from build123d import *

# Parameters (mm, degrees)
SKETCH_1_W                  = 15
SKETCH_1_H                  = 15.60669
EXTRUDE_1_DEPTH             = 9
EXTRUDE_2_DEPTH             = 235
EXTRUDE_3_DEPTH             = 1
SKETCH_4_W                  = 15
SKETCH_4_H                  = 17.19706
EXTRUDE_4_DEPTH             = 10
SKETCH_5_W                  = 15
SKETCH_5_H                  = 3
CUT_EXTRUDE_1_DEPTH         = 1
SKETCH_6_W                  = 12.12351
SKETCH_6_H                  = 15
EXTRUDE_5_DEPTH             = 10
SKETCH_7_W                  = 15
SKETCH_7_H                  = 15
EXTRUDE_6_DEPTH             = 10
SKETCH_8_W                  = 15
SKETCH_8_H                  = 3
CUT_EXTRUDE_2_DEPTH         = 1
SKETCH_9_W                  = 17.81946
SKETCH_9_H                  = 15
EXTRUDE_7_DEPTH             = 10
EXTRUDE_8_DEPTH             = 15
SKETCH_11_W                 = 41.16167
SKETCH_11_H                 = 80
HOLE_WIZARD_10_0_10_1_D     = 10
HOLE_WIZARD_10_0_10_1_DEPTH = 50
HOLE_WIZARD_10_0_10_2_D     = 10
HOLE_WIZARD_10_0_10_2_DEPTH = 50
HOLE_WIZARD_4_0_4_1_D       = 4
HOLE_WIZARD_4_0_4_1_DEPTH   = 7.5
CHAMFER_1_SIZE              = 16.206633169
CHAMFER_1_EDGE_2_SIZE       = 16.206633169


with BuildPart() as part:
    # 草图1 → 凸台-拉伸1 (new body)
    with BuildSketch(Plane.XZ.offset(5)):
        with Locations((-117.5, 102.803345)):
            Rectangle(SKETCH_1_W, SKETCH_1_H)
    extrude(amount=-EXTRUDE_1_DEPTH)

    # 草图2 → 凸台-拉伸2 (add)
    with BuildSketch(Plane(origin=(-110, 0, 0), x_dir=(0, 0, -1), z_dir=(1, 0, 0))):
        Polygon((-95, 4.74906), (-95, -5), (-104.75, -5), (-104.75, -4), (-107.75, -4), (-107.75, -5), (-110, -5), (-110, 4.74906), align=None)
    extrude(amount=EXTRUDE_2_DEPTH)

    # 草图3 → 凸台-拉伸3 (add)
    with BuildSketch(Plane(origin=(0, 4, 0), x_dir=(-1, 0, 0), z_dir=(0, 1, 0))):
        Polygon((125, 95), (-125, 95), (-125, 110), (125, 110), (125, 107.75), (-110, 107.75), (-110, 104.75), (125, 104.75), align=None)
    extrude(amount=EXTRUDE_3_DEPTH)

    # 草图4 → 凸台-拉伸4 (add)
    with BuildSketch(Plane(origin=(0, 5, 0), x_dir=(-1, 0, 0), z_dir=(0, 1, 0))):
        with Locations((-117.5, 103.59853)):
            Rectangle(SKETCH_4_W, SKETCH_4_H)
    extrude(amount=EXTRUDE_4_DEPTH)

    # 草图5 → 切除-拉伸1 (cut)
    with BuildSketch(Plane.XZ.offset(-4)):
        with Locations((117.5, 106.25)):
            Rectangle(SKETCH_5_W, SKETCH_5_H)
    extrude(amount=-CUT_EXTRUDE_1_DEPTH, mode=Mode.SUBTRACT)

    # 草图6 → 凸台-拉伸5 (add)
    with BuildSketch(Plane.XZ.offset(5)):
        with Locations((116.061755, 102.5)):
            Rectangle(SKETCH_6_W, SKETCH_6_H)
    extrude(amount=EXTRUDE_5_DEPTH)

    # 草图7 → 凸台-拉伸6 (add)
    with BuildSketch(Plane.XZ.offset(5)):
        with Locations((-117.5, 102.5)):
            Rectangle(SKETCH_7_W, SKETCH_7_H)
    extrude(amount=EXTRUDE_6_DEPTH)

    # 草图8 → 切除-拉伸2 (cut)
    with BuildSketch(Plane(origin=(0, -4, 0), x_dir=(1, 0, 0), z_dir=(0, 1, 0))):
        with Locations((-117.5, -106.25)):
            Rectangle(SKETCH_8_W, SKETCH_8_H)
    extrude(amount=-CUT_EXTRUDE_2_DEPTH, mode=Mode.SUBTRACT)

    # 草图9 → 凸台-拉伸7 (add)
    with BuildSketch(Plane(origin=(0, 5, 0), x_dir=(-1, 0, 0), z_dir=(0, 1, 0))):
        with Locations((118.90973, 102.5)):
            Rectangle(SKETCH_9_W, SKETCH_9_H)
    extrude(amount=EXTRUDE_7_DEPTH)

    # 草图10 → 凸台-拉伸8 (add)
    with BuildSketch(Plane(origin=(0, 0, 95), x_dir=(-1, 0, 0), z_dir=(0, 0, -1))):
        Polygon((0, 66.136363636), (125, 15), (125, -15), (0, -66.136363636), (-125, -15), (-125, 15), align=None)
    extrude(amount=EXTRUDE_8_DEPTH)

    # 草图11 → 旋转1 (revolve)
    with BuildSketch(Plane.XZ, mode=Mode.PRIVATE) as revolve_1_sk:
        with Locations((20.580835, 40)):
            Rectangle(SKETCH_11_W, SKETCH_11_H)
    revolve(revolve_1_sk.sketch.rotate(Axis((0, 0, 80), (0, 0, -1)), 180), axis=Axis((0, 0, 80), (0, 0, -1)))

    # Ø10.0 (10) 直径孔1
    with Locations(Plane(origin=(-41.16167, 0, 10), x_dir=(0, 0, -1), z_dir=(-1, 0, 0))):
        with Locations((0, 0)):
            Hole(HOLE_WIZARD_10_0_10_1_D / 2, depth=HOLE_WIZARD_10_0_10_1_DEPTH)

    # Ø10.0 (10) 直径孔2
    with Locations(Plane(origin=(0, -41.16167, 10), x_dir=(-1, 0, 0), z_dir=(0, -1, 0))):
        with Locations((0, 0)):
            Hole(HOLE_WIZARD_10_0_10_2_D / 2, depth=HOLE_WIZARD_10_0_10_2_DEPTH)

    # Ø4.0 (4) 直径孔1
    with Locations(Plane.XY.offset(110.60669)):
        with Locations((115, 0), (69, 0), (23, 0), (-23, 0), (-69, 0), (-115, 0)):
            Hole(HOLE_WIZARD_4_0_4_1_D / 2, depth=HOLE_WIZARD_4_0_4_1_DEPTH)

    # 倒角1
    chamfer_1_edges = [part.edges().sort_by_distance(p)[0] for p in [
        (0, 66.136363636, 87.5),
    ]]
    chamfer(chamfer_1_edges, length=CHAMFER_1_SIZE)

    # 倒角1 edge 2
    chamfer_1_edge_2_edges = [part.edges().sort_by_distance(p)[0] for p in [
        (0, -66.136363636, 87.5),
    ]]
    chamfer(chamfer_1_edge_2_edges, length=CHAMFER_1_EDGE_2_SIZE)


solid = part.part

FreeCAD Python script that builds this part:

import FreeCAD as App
import Part
import Sketcher
from FreeCAD import Vector


def edges_at(feature, points):
    """Names of the edges that pass closest to the given points."""
    edges = feature.Shape.Edges
    near = lambda p: min(range(len(edges)), key=lambda i: edges[i].distToShape(Part.Vertex(*p))[0])
    return sorted({f"Edge{near(p) + 1}" for p in points})

doc = App.newDocument("Part")
body = doc.addObject("PartDesign::Body", "Body")

sketch1 = body.newObject("Sketcher::SketchObject", "Sketch")
sketch1.AttachmentSupport = (doc.getObject("XZ_Plane"), [""])
sketch1.MapMode = "FlatFace"
sketch1.AttachmentOffset = App.Placement(Vector(0, 0, 5), App.Rotation())
sketch1.addGeometry([
    Part.LineSegment(Vector(-125, 111, 0), Vector(-125, 95, 0)),
    Part.LineSegment(Vector(-125, 95, 0), Vector(-110, 95, 0)),
    Part.LineSegment(Vector(-110, 95, 0), Vector(-110, 111, 0)),
    Part.LineSegment(Vector(-110, 111, 0), Vector(-125, 111, 0)),
], False)
sketch1.addConstraint([
    Sketcher.Constraint("Coincident", 0, 2, 1, 1),
    Sketcher.Constraint("Coincident", 1, 2, 2, 1),
    Sketcher.Constraint("Coincident", 2, 2, 3, 1),
    Sketcher.Constraint("Coincident", 3, 2, 0, 1),
    Sketcher.Constraint("Vertical", 0),
    Sketcher.Constraint("Horizontal", 1),
    Sketcher.Constraint("Vertical", 2),
    Sketcher.Constraint("Horizontal", 3),
    Sketcher.Constraint("DistanceX", 1, 1, 1, 2, 15.0),
    Sketcher.Constraint("DistanceX", 0, 2, -1, 1, 125.0),
    Sketcher.Constraint("DistanceY", -1, 1, 0, 2, 95.0),
    Sketcher.Constraint("DistanceY", 0, 2, 0, 1, 15.60669),
])
pad1 = body.newObject("PartDesign::Pad", "Pad")
pad1.Profile = sketch1
pad1.Length = 9
pad1.Reversed = True

sketch2 = body.newObject("Sketcher::SketchObject", "Sketch001")
sketch2.AttachmentSupport = (doc.getObject("YZ_Plane"), [""])
sketch2.MapMode = "FlatFace"
sketch2.AttachmentOffset = App.Placement(Vector(0, 0, -110), App.Rotation())
sketch2.addGeometry([
    Part.LineSegment(Vector(-5, 95, 0), Vector(4.7, 95, 0)),
    Part.LineSegment(Vector(4.7, 95, 0), Vector(4.7, 110, 0)),
    Part.LineSegment(Vector(4.7, 110, 0), Vector(-5, 110, 0)),
    Part.LineSegment(Vector(-5, 110, 0), Vector(-5, 107.8, 0)),
    Part.LineSegment(Vector(-5, 107.8, 0), Vector(-4, 107.8, 0)),
    Part.LineSegment(Vector(-4, 107.8, 0), Vector(-4, 104.8, 0)),
    Part.LineSegment(Vector(-4, 104.8, 0), Vector(-5, 104.8, 0)),
    Part.LineSegment(Vector(-5, 104.8, 0), Vector(-5, 95, 0)),
], False)
sketch2.addConstraint([
    Sketcher.Constraint("Coincident", 0, 2, 1, 1),
    Sketcher.Constraint("Coincident", 1, 2, 2, 1),
    Sketcher.Constraint("Coincident", 2, 2, 3, 1),
    Sketcher.Constraint("Coincident", 3, 2, 4, 1),
    Sketcher.Constraint("Coincident", 4, 2, 5, 1),
    Sketcher.Constraint("Coincident", 5, 2, 6, 1),
    Sketcher.Constraint("Coincident", 6, 2, 7, 1),
    Sketcher.Constraint("Coincident", 7, 2, 0, 1),
    Sketcher.Constraint("Horizontal", 0),
    Sketcher.Constraint("Vertical", 1),
    Sketcher.Constraint("Horizontal", 2),
    Sketcher.Constraint("Vertical", 3),
    Sketcher.Constraint("Horizontal", 4),
    Sketcher.Constraint("Vertical", 5),
    Sketcher.Constraint("Horizontal", 6),
    Sketcher.Constraint("Vertical", 7),
    Sketcher.Constraint("Vertical", 3, 2, 6, 2),
    Sketcher.Constraint("DistanceX", 4, 1, 4, 2, 1.0),
    Sketcher.Constraint("DistanceY", 1, 1, 1, 2, 15.0),
    Sketcher.Constraint("DistanceY", 5, 2, 5, 1, 3.0),
    Sketcher.Constraint("DistanceY", -1, 1, 0, 2, 95.0),
    Sketcher.Constraint("DistanceX", 2, 2, -1, 1, 5.0),
    Sketcher.Constraint("DistanceY", 3, 2, 3, 1, 2.25),
    Sketcher.Constraint("DistanceX", 0, 1, 0, 2, 9.74906),
])
pad2 = body.newObject("PartDesign::Pad", "Pad001")
pad2.Profile = sketch2
pad2.Length = 235

sketch3 = body.newObject("Sketcher::SketchObject", "Sketch002")
sketch3.AttachmentSupport = (doc.getObject("XZ_Plane"), [""])
sketch3.MapMode = "FlatFace"
sketch3.AttachmentOffset = App.Placement(Vector(0, 0, -4), App.Rotation())
sketch3.addGeometry([
    Part.LineSegment(Vector(125, 95, 0), Vector(-125, 95, 0)),
    Part.LineSegment(Vector(-125, 95, 0), Vector(-125, 104.8, 0)),
    Part.LineSegment(Vector(-125, 104.8, 0), Vector(110, 104.8, 0)),
    Part.LineSegment(Vector(110, 104.8, 0), Vector(110, 107.8, 0)),
    Part.LineSegment(Vector(110, 107.8, 0), Vector(-125, 107.8, 0)),
    Part.LineSegment(Vector(-125, 107.8, 0), Vector(-125, 110, 0)),
    Part.LineSegment(Vector(-125, 110, 0), Vector(125, 110, 0)),
    Part.LineSegment(Vector(125, 110, 0), Vector(125, 95, 0)),
], False)
sketch3.addConstraint([
    Sketcher.Constraint("Coincident", 0, 2, 1, 1),
    Sketcher.Constraint("Coincident", 1, 2, 2, 1),
    Sketcher.Constraint("Coincident", 2, 2, 3, 1),
    Sketcher.Constraint("Coincident", 3, 2, 4, 1),
    Sketcher.Constraint("Coincident", 4, 2, 5, 1),
    Sketcher.Constraint("Coincident", 5, 2, 6, 1),
    Sketcher.Constraint("Coincident", 6, 2, 7, 1),
    Sketcher.Constraint("Coincident", 7, 2, 0, 1),
    Sketcher.Constraint("Horizontal", 0),
    Sketcher.Constraint("Vertical", 1),
    Sketcher.Constraint("Horizontal", 2),
    Sketcher.Constraint("Vertical", 3),
    Sketcher.Constraint("Horizontal", 4),
    Sketcher.Constraint("Vertical", 5),
    Sketcher.Constraint("Horizontal", 6),
    Sketcher.Constraint("Vertical", 7),
    Sketcher.Constraint("Vertical", 1, 2, 4, 2),
    Sketcher.Constraint("DistanceX", 0, 2, 0, 1, 250.0),
    Sketcher.Constraint("DistanceX", 2, 1, 2, 2, 235.0),
    Sketcher.Constraint("DistanceY", 3, 1, 3, 2, 3.0),
    Sketcher.Constraint("DistanceY", 7, 2, 7, 1, 15.0),
    Sketcher.Constraint("DistanceX", 0, 2, -1, 1, 125.0),
    Sketcher.Constraint("DistanceY", -1, 1, 0, 2, 95.0),
    Sketcher.Constraint("DistanceY", 1, 1, 1, 2, 9.75),
])
pad3 = body.newObject("PartDesign::Pad", "Pad002")
pad3.Profile = sketch3
pad3.Length = 1
pad3.Reversed = True

sketch4 = body.newObject("Sketcher::SketchObject", "Sketch003")
sketch4.AttachmentSupport = (doc.getObject("XZ_Plane"), [""])
sketch4.MapMode = "FlatFace"
sketch4.AttachmentOffset = App.Placement(Vector(0, 0, -5), App.Rotation())
sketch4.addGeometry([
    Part.LineSegment(Vector(125, 112, 0), Vector(125, 95, 0)),
    Part.LineSegment(Vector(125, 95, 0), Vector(110, 95, 0)),
    Part.LineSegment(Vector(110, 95, 0), Vector(110, 112, 0)),
    Part.LineSegment(Vector(110, 112, 0), Vector(125, 112, 0)),
], False)
sketch4.addConstraint([
    Sketcher.Constraint("Coincident", 0, 2, 1, 1),
    Sketcher.Constraint("Coincident", 1, 2, 2, 1),
    Sketcher.Constraint("Coincident", 2, 2, 3, 1),
    Sketcher.Constraint("Coincident", 3, 2, 0, 1),
    Sketcher.Constraint("Vertical", 0),
    Sketcher.Constraint("Horizontal", 1),
    Sketcher.Constraint("Vertical", 2),
    Sketcher.Constraint("Horizontal", 3),
    Sketcher.Constraint("DistanceX", 1, 2, 1, 1, 15.0),
    Sketcher.Constraint("DistanceX", -1, 1, 0, 2, 125.0),
    Sketcher.Constraint("DistanceY", -1, 1, 0, 2, 95.0),
    Sketcher.Constraint("DistanceY", 0, 2, 0, 1, 17.19706),
])
pad4 = body.newObject("PartDesign::Pad", "Pad003")
pad4.Profile = sketch4
pad4.Length = 10
pad4.Reversed = True

sketch5 = body.newObject("Sketcher::SketchObject", "Sketch004")
sketch5.AttachmentSupport = (doc.getObject("XZ_Plane"), [""])
sketch5.MapMode = "FlatFace"
sketch5.AttachmentOffset = App.Placement(Vector(0, 0, -4), App.Rotation())
sketch5.addGeometry([
    Part.LineSegment(Vector(110, 107.8, 0), Vector(110, 104.8, 0)),
    Part.LineSegment(Vector(110, 104.8, 0), Vector(125, 104.8, 0)),
    Part.LineSegment(Vector(125, 104.8, 0), Vector(125, 107.8, 0)),
    Part.LineSegment(Vector(125, 107.8, 0), Vector(110, 107.8, 0)),
], False)
sketch5.addConstraint([
    Sketcher.Constraint("Coincident", 0, 2, 1, 1),
    Sketcher.Constraint("Coincident", 1, 2, 2, 1),
    Sketcher.Constraint("Coincident", 2, 2, 3, 1),
    Sketcher.Constraint("Coincident", 3, 2, 0, 1),
    Sketcher.Constraint("Vertical", 0),
    Sketcher.Constraint("Horizontal", 1),
    Sketcher.Constraint("Vertical", 2),
    Sketcher.Constraint("Horizontal", 3),
    Sketcher.Constraint("DistanceX", 1, 1, 1, 2, 15.0),
    Sketcher.Constraint("DistanceY", 0, 2, 0, 1, 3.0),
    Sketcher.Constraint("DistanceX", -1, 1, 0, 2, 110.0),
    Sketcher.Constraint("DistanceY", -1, 1, 0, 2, 104.75),
])
pocket1 = body.newObject("PartDesign::Pocket", "Pocket")
pocket1.Profile = sketch5
pocket1.Length = 1

sketch6 = body.newObject("Sketcher::SketchObject", "Sketch005")
sketch6.AttachmentSupport = (doc.getObject("XZ_Plane"), [""])
sketch6.MapMode = "FlatFace"
sketch6.AttachmentOffset = App.Placement(Vector(0, 0, 5), App.Rotation())
sketch6.addGeometry([
    Part.LineSegment(Vector(110, 110, 0), Vector(110, 95, 0)),
    Part.LineSegment(Vector(110, 95, 0), Vector(122, 95, 0)),
    Part.LineSegment(Vector(122, 95, 0), Vector(122, 110, 0)),
    Part.LineSegment(Vector(122, 110, 0), Vector(110, 110, 0)),
], False)
sketch6.addConstraint([
    Sketcher.Constraint("Coincident", 0, 2, 1, 1),
    Sketcher.Constraint("Coincident", 1, 2, 2, 1),
    Sketcher.Constraint("Coincident", 2, 2, 3, 1),
    Sketcher.Constraint("Coincident", 3, 2, 0, 1),
    Sketcher.Constraint("Vertical", 0),
    Sketcher.Constraint("Horizontal", 1),
    Sketcher.Constraint("Vertical", 2),
    Sketcher.Constraint("Horizontal", 3),
    Sketcher.Constraint("DistanceY", 0, 2, 0, 1, 15.0),
    Sketcher.Constraint("DistanceX", -1, 1, 0, 2, 110.0),
    Sketcher.Constraint("DistanceY", -1, 1, 0, 2, 95.0),
    Sketcher.Constraint("DistanceX", 1, 1, 1, 2, 12.12351),
])
pad5 = body.newObject("PartDesign::Pad", "Pad004")
pad5.Profile = sketch6
pad5.Length = 10

sketch7 = body.newObject("Sketcher::SketchObject", "Sketch006")
sketch7.AttachmentSupport = (doc.getObject("XZ_Plane"), [""])
sketch7.MapMode = "FlatFace"
sketch7.AttachmentOffset = App.Placement(Vector(0, 0, 5), App.Rotation())
sketch7.addGeometry([
    Part.LineSegment(Vector(-125, 110, 0), Vector(-125, 95, 0)),
    Part.LineSegment(Vector(-125, 95, 0), Vector(-110, 95, 0)),
    Part.LineSegment(Vector(-110, 95, 0), Vector(-110, 110, 0)),
    Part.LineSegment(Vector(-110, 110, 0), Vector(-125, 110, 0)),
], False)
sketch7.addConstraint([
    Sketcher.Constraint("Coincident", 0, 2, 1, 1),
    Sketcher.Constraint("Coincident", 1, 2, 2, 1),
    Sketcher.Constraint("Coincident", 2, 2, 3, 1),
    Sketcher.Constraint("Coincident", 3, 2, 0, 1),
    Sketcher.Constraint("Vertical", 0),
    Sketcher.Constraint("Horizontal", 1),
    Sketcher.Constraint("Vertical", 2),
    Sketcher.Constraint("Horizontal", 3),
    Sketcher.Constraint("Equal", 3, 0),
    Sketcher.Constraint("DistanceX", 1, 1, 1, 2, 15.0),
    Sketcher.Constraint("DistanceX", 0, 2, -1, 1, 125.0),
    Sketcher.Constraint("DistanceY", -1, 1, 0, 2, 95.0),
])
pad6 = body.newObject("PartDesign::Pad", "Pad005")
pad6.Profile = sketch7
pad6.Length = 10

sketch8 = body.newObject("Sketcher::SketchObject", "Sketch007")
sketch8.AttachmentSupport = (doc.getObject("XZ_Plane"), [""])
sketch8.MapMode = "FlatFace"
sketch8.AttachmentOffset = App.Placement(Vector(0, 0, 4), App.Rotation())
sketch8.addGeometry([
    Part.LineSegment(Vector(-125, 104.8, 0), Vector(-125, 107.8, 0)),
    Part.LineSegment(Vector(-125, 107.8, 0), Vector(-110, 107.8, 0)),
    Part.LineSegment(Vector(-110, 107.8, 0), Vector(-110, 104.8, 0)),
    Part.LineSegment(Vector(-110, 104.8, 0), Vector(-125, 104.8, 0)),
], False)
sketch8.addConstraint([
    Sketcher.Constraint("Coincident", 0, 2, 1, 1),
    Sketcher.Constraint("Coincident", 1, 2, 2, 1),
    Sketcher.Constraint("Coincident", 2, 2, 3, 1),
    Sketcher.Constraint("Coincident", 3, 2, 0, 1),
    Sketcher.Constraint("Vertical", 0),
    Sketcher.Constraint("Horizontal", 1),
    Sketcher.Constraint("Vertical", 2),
    Sketcher.Constraint("Horizontal", 3),
    Sketcher.Constraint("DistanceX", 1, 1, 1, 2, 15.0),
    Sketcher.Constraint("DistanceY", 0, 1, 0, 2, 3.0),
    Sketcher.Constraint("DistanceX", 0, 2, -1, 1, 125.0),
    Sketcher.Constraint("DistanceY", -1, 1, 0, 2, 107.75),
])
pocket2 = body.newObject("PartDesign::Pocket", "Pocket001")
pocket2.Profile = sketch8
pocket2.Length = 1
pocket2.Reversed = True

sketch9 = body.newObject("Sketcher::SketchObject", "Sketch008")
sketch9.AttachmentSupport = (doc.getObject("XZ_Plane"), [""])
sketch9.MapMode = "FlatFace"
sketch9.AttachmentOffset = App.Placement(Vector(0, 0, -5), App.Rotation())
sketch9.addGeometry([
    Part.LineSegment(Vector(-110, 110, 0), Vector(-110, 95, 0)),
    Part.LineSegment(Vector(-110, 95, 0), Vector(-128, 95, 0)),
    Part.LineSegment(Vector(-128, 95, 0), Vector(-128, 110, 0)),
    Part.LineSegment(Vector(-128, 110, 0), Vector(-110, 110, 0)),
], False)
sketch9.addConstraint([
    Sketcher.Constraint("Coincident", 0, 2, 1, 1),
    Sketcher.Constraint("Coincident", 1, 2, 2, 1),
    Sketcher.Constraint("Coincident", 2, 2, 3, 1),
    Sketcher.Constraint("Coincident", 3, 2, 0, 1),
    Sketcher.Constraint("Vertical", 0),
    Sketcher.Constraint("Horizontal", 1),
    Sketcher.Constraint("Vertical", 2),
    Sketcher.Constraint("Horizontal", 3),
    Sketcher.Constraint("DistanceY", 0, 2, 0, 1, 15.0),
    Sketcher.Constraint("DistanceX", 0, 2, -1, 1, 110.0),
    Sketcher.Constraint("DistanceY", -1, 1, 0, 2, 95.0),
    Sketcher.Constraint("DistanceX", 1, 2, 1, 1, 17.81946),
])
pad7 = body.newObject("PartDesign::Pad", "Pad006")
pad7.Profile = sketch9
pad7.Length = 10
pad7.Reversed = True

sketch10 = body.newObject("Sketcher::SketchObject", "Sketch009")
sketch10.AttachmentSupport = (doc.getObject("XY_Plane"), [""])
sketch10.MapMode = "FlatFace"
sketch10.AttachmentOffset = App.Placement(Vector(0, 0, 95), App.Rotation())
sketch10.addGeometry([
    Part.LineSegment(Vector(-125, 15, 0), Vector(0, 66, 0)),
    Part.LineSegment(Vector(0, 66, 0), Vector(125, 15, 0)),
    Part.LineSegment(Vector(125, 15, 0), Vector(125, -15, 0)),
    Part.LineSegment(Vector(125, -15, 0), Vector(0, -66, 0)),
    Part.LineSegment(Vector(0, -66, 0), Vector(-125, -15, 0)),
    Part.LineSegment(Vector(-125, -15, 0), Vector(-125, 15, 0)),
], False)
sketch10.addConstraint([
    Sketcher.Constraint("Coincident", 0, 2, 1, 1),
    Sketcher.Constraint("Coincident", 1, 2, 2, 1),
    Sketcher.Constraint("Coincident", 2, 2, 3, 1),
    Sketcher.Constraint("Coincident", 3, 2, 4, 1),
    Sketcher.Constraint("Coincident", 4, 2, 5, 1),
    Sketcher.Constraint("Coincident", 5, 2, 0, 1),
    Sketcher.Constraint("Vertical", 2),
    Sketcher.Constraint("Vertical", 5),
    Sketcher.Constraint("Symmetric", 0, 2, 3, 2, -1, 1),
    Sketcher.Constraint("Symmetric", 1, 2, 4, 2, -1, 1),
    Sketcher.Constraint("PointOnObject", 0, 2, -2),
    Sketcher.Constraint("Parallel", 0, 3),
    Sketcher.Constraint("Horizontal", 2, 2, 4, 2),
    Sketcher.Constraint("DistanceY", 2, 2, 2, 1, 30.0),
    Sketcher.Constraint("DistanceX", -1, 1, 1, 2, 125.0),
    Sketcher.Constraint("Distance", 0, 135.055276),
])
pad8 = body.newObject("PartDesign::Pad", "Pad007")
pad8.Profile = sketch10
pad8.Length = 15
pad8.Reversed = True

sketch11 = body.newObject("Sketcher::SketchObject", "Sketch010")
sketch11.AttachmentSupport = (doc.getObject("XZ_Plane"), [""])
sketch11.MapMode = "FlatFace"
sketch11.addGeometry([
    Part.LineSegment(Vector(0, 80, 0), Vector(0, 0, 0)),
    Part.LineSegment(Vector(0, 0, 0), Vector(41, 0, 0)),
    Part.LineSegment(Vector(41, 0, 0), Vector(41, 80, 0)),
    Part.LineSegment(Vector(41, 80, 0), Vector(0, 80, 0)),
], False)
sketch11.addConstraint([
    Sketcher.Constraint("Coincident", 0, 2, 1, 1),
    Sketcher.Constraint("Coincident", 1, 2, 2, 1),
    Sketcher.Constraint("Coincident", 2, 2, 3, 1),
    Sketcher.Constraint("Coincident", 3, 2, 0, 1),
    Sketcher.Constraint("Vertical", 0),
    Sketcher.Constraint("Horizontal", 1),
    Sketcher.Constraint("Vertical", 2),
    Sketcher.Constraint("Horizontal", 3),
    Sketcher.Constraint("Coincident", 0, 2, -1, 1),
    Sketcher.Constraint("DistanceY", 0, 2, 0, 1, 80.0),
    Sketcher.Constraint("DistanceX", 1, 1, 1, 2, 41.16167),
])
revolution = body.newObject("PartDesign::Revolution", "Revolution")
revolution.Profile = sketch11
revolution.ReferenceAxis = (sketch11, ["V_Axis"])
revolution.Angle = 360

sketch12 = body.newObject("Sketcher::SketchObject", "Sketch011")
sketch12.AttachmentSupport = (doc.getObject("YZ_Plane"), [""])
sketch12.MapMode = "FlatFace"
sketch12.AttachmentOffset = App.Placement(Vector(0, 0, -41.16167), App.Rotation())
sketch12.addGeometry(Part.Circle(Vector(0, 10, 0), Vector(0, 0, 1), 5), False)
sketch12.addConstraint([
    Sketcher.Constraint("PointOnObject", 0, 3, -2),
    Sketcher.Constraint("Diameter", 0, 10.0),
    Sketcher.Constraint("DistanceY", -1, 1, 0, 3, 10.0),
])
doc.recompute()
hole = body.newObject("PartDesign::Hole", "Hole")
hole.Profile = sketch12
hole.ThreadType = "None"
hole.Diameter = 10
hole.DepthType = "Dimension"
hole.Depth = 50
hole.DrillPoint = "Flat"
hole.Reversed = True

sketch13 = body.newObject("Sketcher::SketchObject", "Sketch012")
sketch13.AttachmentSupport = (doc.getObject("XZ_Plane"), [""])
sketch13.MapMode = "FlatFace"
sketch13.AttachmentOffset = App.Placement(Vector(0, 0, 41.16167), App.Rotation())
sketch13.addGeometry(Part.Circle(Vector(0, 10, 0), Vector(0, 0, 1), 5), False)
sketch13.addConstraint([
    Sketcher.Constraint("PointOnObject", 0, 3, -2),
    Sketcher.Constraint("Diameter", 0, 10.0),
    Sketcher.Constraint("DistanceY", -1, 1, 0, 3, 10.0),
])
doc.recompute()
hole2 = body.newObject("PartDesign::Hole", "Hole001")
hole2.Profile = sketch13
hole2.ThreadType = "None"
hole2.Diameter = 10
hole2.DepthType = "Dimension"
hole2.Depth = 50
hole2.DrillPoint = "Flat"

sketch14 = body.newObject("Sketcher::SketchObject", "Sketch013")
sketch14.AttachmentSupport = (doc.getObject("XY_Plane"), [""])
sketch14.MapMode = "FlatFace"
sketch14.AttachmentOffset = App.Placement(Vector(0, 0, 110.60669), App.Rotation())
sketch14.addGeometry([
    Part.Circle(Vector(115, 0, 0), Vector(0, 0, 1), 2),
    Part.Circle(Vector(69, 0, 0), Vector(0, 0, 1), 2),
    Part.Circle(Vector(23, 0, 0), Vector(0, 0, 1), 2),
    Part.Circle(Vector(-23, 0, 0), Vector(0, 0, 1), 2),
    Part.Circle(Vector(-69, 0, 0), Vector(0, 0, 1), 2),
    Part.Circle(Vector(-115, 0, 0), Vector(0, 0, 1), 2),
], False)
sketch14.addConstraint([
    Sketcher.Constraint("Equal", 0, 1),
    Sketcher.Constraint("Equal", 1, 2),
    Sketcher.Constraint("Equal", 2, 3),
    Sketcher.Constraint("Equal", 3, 4),
    Sketcher.Constraint("Equal", 4, 5),
    Sketcher.Constraint("Symmetric", 2, 3, 3, 3, -1, 1),
    Sketcher.Constraint("Symmetric", 1, 3, 4, 3, -1, 1),
    Sketcher.Constraint("Symmetric", 0, 3, 5, 3, -1, 1),
    Sketcher.Constraint("PointOnObject", 0, 3, -1),
    Sketcher.Constraint("PointOnObject", 1, 3, -1),
    Sketcher.Constraint("PointOnObject", 2, 3, -1),
    Sketcher.Constraint("Diameter", 0, 4.0),
    Sketcher.Constraint("DistanceX", -1, 1, 0, 3, 115.0),
    Sketcher.Constraint("DistanceX", -1, 1, 1, 3, 69.0),
    Sketcher.Constraint("DistanceX", -1, 1, 2, 3, 23.0),
])
doc.recompute()
hole3 = body.newObject("PartDesign::Hole", "Hole002")
hole3.Profile = sketch14
hole3.ThreadType = "None"
hole3.Diameter = 4
hole3.DepthType = "Dimension"
hole3.Depth = 7.5
hole3.DrillPoint = "Flat"
doc.recompute()

chamfer = body.newObject("PartDesign::Chamfer", "Chamfer")
chamfer.Base = (hole3, edges_at(hole3, [(0, 66.136, 87.5)]))
chamfer.Size = 16.206633
doc.recompute()

chamfer2 = body.newObject("PartDesign::Chamfer", "Chamfer001")
chamfer2.Base = (chamfer, edges_at(chamfer, [(0, -66.136, 87.5)]))
chamfer2.Size = 16.206633

doc.recompute()
